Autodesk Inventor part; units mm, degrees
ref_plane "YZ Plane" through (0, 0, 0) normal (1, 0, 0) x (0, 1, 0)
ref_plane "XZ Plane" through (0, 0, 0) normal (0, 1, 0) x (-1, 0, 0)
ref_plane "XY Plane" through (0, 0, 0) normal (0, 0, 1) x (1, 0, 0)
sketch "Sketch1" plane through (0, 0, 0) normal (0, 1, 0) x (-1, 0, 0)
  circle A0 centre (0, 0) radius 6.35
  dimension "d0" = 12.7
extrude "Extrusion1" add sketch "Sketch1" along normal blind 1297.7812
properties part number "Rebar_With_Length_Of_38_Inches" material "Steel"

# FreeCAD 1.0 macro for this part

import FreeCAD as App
import Part
import Sketcher

V = App.Vector
Q = App.Units.Quantity

doc = App.newDocument("Part")
body = doc.addObject("PartDesign::Body", "Body")

# Sketch on XZ plane
sketch1 = body.newObject("Sketcher::SketchObject", "Sketch")
sketch1.AttachmentSupport = (doc.getObject("XZ_Plane"), [""])
sketch1.MapMode = "FlatFace"
sketch1.addGeometry(Part.Circle(V(0, 0, 0), V(0, 0, 1), 6.35), False)
sketch1.addConstraint(Sketcher.Constraint("Coincident", 0, 3, -1, 1))
sketch1.addConstraint(Sketcher.Constraint("Diameter", 0, Q("0.5 in")))
pad1 = body.newObject("PartDesign::Pad", "Pad")
pad1.Profile = sketch1
pad1.Length = Q("51.093748 in")
pad1.Reversed = True

doc.recompute()
